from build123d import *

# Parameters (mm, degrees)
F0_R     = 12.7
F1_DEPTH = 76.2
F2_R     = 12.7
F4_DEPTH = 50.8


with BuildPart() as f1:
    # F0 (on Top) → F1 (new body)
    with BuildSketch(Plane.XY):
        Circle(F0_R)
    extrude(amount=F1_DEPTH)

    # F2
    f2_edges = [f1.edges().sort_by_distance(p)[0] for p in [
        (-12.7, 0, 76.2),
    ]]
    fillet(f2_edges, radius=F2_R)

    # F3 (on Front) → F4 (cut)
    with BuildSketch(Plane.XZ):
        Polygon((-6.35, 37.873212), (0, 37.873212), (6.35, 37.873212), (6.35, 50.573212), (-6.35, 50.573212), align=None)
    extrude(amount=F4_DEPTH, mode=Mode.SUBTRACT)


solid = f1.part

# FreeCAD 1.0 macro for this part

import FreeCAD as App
import Part
import Sketcher

V = App.Vector
Q = App.Units.Quantity


def edges_at(feature, points):
    """Names of the edges that pass closest to the given points."""
    edges = feature.Shape.Edges
    near = lambda p: min(range(len(edges)), key=lambda i: edges[i].distToShape(Part.Vertex(*p))[0])
    return sorted({f"Edge{near(p) + 1}" for p in points})

doc = App.newDocument("Part")
body = doc.addObject("PartDesign::Body", "Body")

sketch1 = doc.addObject("Sketcher::SketchObject", "Sketch")
body.addObject(sketch1)
sketch1.AttachmentSupport = (doc.XY_Plane, [""])
sketch1.MapMode = "FlatFace"
sketch1.addGeometry(Part.Circle(V(0, 0, 0), V(0, 0, 1), 12.7), False)
sketch1.addConstraint(Sketcher.Constraint("Coincident", 0, 3, -1, 1))
sketch1.addConstraint(Sketcher.Constraint("Diameter", 0, Q("1 in")))
pad1 = doc.addObject("PartDesign::Pad", "Pad")
body.addObject(pad1)
pad1.Profile = sketch1
pad1.Length = Q("3 in")
doc.recompute()

fillet = doc.addObject("PartDesign::Fillet", "Fillet")
body.addObject(fillet)
fillet.Base = (pad1, edges_at(pad1, [(-12.7, 0, 76.2)]))
fillet.Radius = Q("0.5 in")

sketch2 = doc.addObject("Sketcher::SketchObject", "Sketch001")
body.addObject(sketch2)
sketch2.AttachmentSupport = (doc.XZ_Plane, [""])
sketch2.MapMode = "FlatFace"
sketch2.addGeometry(Part.LineSegment(V(-6.35, 37.873212, 0), V(6.35, 37.873212, 0)), False)
sketch2.addGeometry(Part.LineSegment(V(6.35, 37.873212, 0), V(6.35, 50.573212, 0)), False)
sketch2.addGeometry(Part.LineSegment(V(6.35, 50.573212, 0), V(-6.35, 50.573212, 0)), False)
sketch2.addGeometry(Part.LineSegment(V(-6.35, 50.573212, 0), V(-6.35, 37.873212, 0)), False)
sketch2.addConstraint(Sketcher.Constraint("Coincident", 0, 2, 1, 1))
sketch2.addConstraint(Sketcher.Constraint("Coincident", 1, 2, 2, 1))
sketch2.addConstraint(Sketcher.Constraint("Coincident", 2, 2, 3, 1))
sketch2.addConstraint(Sketcher.Constraint("Coincident", 3, 2, 0, 1))
sketch2.addConstraint(Sketcher.Constraint("Horizontal", 0))
sketch2.addConstraint(Sketcher.Constraint("Vertical", 1))
sketch2.addConstraint(Sketcher.Constraint("Horizontal", 2))
sketch2.addConstraint(Sketcher.Constraint("Vertical", 3))
sketch2.addConstraint(Sketcher.Constraint("Equal", 2, 1))
sketch2.addConstraint(Sketcher.Constraint("DistanceX", 0, 1, 0, 2, Q("0.5 in")))
sketch2.addConstraint(Sketcher.Constraint("DistanceX", -1, 1, 0, 2, Q("0.25 in")))
sketch2.addConstraint(Sketcher.Constraint("DistanceY", -1, 1, 1, 2, 50.573212))
pocket1 = doc.addObject("PartDesign::Pocket", "Pocket")
body.addObject(pocket1)
pocket1.Profile = sketch2
pocket1.Length = Q("2 in")
pocket1.Reversed = True

doc.recompute()
